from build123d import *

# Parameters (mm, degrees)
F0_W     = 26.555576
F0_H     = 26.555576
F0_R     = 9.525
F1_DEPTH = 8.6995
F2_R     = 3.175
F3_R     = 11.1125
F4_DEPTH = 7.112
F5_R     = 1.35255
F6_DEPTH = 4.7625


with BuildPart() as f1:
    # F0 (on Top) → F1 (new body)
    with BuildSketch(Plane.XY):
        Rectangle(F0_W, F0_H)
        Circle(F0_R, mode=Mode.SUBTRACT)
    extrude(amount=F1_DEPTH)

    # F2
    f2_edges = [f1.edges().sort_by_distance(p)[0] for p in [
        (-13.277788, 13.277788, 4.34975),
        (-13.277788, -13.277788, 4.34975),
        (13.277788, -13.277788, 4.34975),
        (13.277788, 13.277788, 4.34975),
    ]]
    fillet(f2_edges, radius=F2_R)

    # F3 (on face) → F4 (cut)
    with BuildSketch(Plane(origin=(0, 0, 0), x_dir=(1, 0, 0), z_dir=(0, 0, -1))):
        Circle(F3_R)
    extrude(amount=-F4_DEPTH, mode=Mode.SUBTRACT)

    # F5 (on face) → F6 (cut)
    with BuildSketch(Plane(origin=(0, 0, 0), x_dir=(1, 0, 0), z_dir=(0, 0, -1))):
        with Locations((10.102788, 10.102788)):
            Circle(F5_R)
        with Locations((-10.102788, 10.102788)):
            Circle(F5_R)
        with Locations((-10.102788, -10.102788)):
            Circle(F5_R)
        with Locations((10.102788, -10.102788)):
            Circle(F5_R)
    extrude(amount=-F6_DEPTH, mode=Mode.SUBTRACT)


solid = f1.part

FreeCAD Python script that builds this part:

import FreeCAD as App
import Part
import Sketcher
Q = App.Units.Quantity


def edges_at(feature, points):
    """Names of the edges that pass closest to the given points."""
    edges = feature.Shape.Edges
    near = lambda p: min(range(len(edges)), key=lambda i: edges[i].distToShape(Part.Vertex(*p))[0])
    return sorted({f"Edge{near(p) + 1}" for p in points})

doc = App.newDocument("Part")
body = doc.addObject("PartDesign::Body", "Body")

sketch1 = body.newObject("Sketcher::SketchObject", "Sketch")
sketch1.AttachmentSupport = (doc.getObject("XY_Plane"), [""])
sketch1.MapMode = "FlatFace"
sketch1.addGeometry([
    Part.LineSegment(App.Vector(-13, 13, 0), App.Vector(-13, -13, 0)),
    Part.LineSegment(App.Vector(-13, -13, 0), App.Vector(13, -13, 0)),
    Part.LineSegment(App.Vector(13, -13, 0), App.Vector(13, 13, 0)),
    Part.LineSegment(App.Vector(13, 13, 0), App.Vector(-13, 13, 0)),
    Part.Circle(App.Vector(0, 0, 0), App.Vector(0, 0, 1), 10),
], False)
sketch1.addConstraint([
    Sketcher.Constraint("Coincident", 0, 2, 1, 1),
    Sketcher.Constraint("Coincident", 1, 2, 2, 1),
    Sketcher.Constraint("Coincident", 2, 2, 3, 1),
    Sketcher.Constraint("Coincident", 3, 2, 0, 1),
    Sketcher.Constraint("Vertical", 0),
    Sketcher.Constraint("Horizontal", 1),
    Sketcher.Constraint("Vertical", 2),
    Sketcher.Constraint("Horizontal", 3),
    Sketcher.Constraint("Coincident", 4, 3, -1, 1),
    Sketcher.Constraint("Symmetric", 0, 2, 2, 2, -1, 1),
    Sketcher.Constraint("Equal", 3, 0),
    Sketcher.Constraint("Diameter", 4, Q("0.75 in")),
    Sketcher.Constraint("DistanceX", 1, 1, 1, 2, 26.555576),
])
pad1 = body.newObject("PartDesign::Pad", "Pad")
pad1.Profile = sketch1
pad1.Length = Q("0.3425 in")
doc.recompute()

fillet = body.newObject("PartDesign::Fillet", "Fillet")
fillet.Base = (pad1, edges_at(pad1, [
    (-13.278, 13.278, 4.35),
    (-13.278, -13.278, 4.35),
    (13.278, -13.278, 4.35),
    (13.278, 13.278, 4.35),
]))
fillet.Radius = Q("0.125 in")

sketch2 = body.newObject("Sketcher::SketchObject", "Sketch001")
sketch2.AttachmentSupport = (doc.getObject("XY_Plane"), [""])
sketch2.MapMode = "FlatFace"
sketch2.addGeometry(Part.Circle(App.Vector(0, 0, 0), App.Vector(0, 0, 1), 11), False)
sketch2.addConstraint([
    Sketcher.Constraint("Coincident", 0, 3, -1, 1),
    Sketcher.Constraint("Diameter", 0, Q("0.875 in")),
])
pocket1 = body.newObject("PartDesign::Pocket", "Pocket")
pocket1.Profile = sketch2
pocket1.Length = Q("0.28 in")
pocket1.Reversed = True

sketch3 = body.newObject("Sketcher::SketchObject", "Sketch002")
sketch3.AttachmentSupport = (doc.getObject("XY_Plane"), [""])
sketch3.MapMode = "FlatFace"
sketch3.addGeometry([
    Part.Circle(App.Vector(10.1, -10.1, 0), App.Vector(0, 0, 1), 1.4),
    Part.Circle(App.Vector(-10.1, -10.1, 0), App.Vector(0, 0, 1), 1.4),
    Part.Circle(App.Vector(-10.1, 10.1, 0), App.Vector(0, 0, 1), 1.4),
    Part.Circle(App.Vector(10.1, 10.1, 0), App.Vector(0, 0, 1), 1.4),
], False)
sketch3.addConstraint([
    Sketcher.Constraint("Equal", 0, 1),
    Sketcher.Constraint("Equal", 1, 2),
    Sketcher.Constraint("Equal", 2, 3),
    Sketcher.Constraint("Symmetric", 0, 3, 2, 3, -1, 1),
    Sketcher.Constraint("Symmetric", 1, 3, 3, 3, -1, 1),
    Sketcher.Constraint("Symmetric", 0, 3, 1, 3, -2),
    Sketcher.Constraint("Diameter", 0, Q("0.1065 in")),
    Sketcher.Constraint("DistanceX", -1, 1, 0, 3, 10.102788),
    Sketcher.Constraint("DistanceY", 0, 3, -1, 1, 10.102788),
])
pocket2 = body.newObject("PartDesign::Pocket", "Pocket001")
pocket2.Profile = sketch3
pocket2.Length = Q("0.1875 in")
pocket2.Reversed = True

doc.recompute()
